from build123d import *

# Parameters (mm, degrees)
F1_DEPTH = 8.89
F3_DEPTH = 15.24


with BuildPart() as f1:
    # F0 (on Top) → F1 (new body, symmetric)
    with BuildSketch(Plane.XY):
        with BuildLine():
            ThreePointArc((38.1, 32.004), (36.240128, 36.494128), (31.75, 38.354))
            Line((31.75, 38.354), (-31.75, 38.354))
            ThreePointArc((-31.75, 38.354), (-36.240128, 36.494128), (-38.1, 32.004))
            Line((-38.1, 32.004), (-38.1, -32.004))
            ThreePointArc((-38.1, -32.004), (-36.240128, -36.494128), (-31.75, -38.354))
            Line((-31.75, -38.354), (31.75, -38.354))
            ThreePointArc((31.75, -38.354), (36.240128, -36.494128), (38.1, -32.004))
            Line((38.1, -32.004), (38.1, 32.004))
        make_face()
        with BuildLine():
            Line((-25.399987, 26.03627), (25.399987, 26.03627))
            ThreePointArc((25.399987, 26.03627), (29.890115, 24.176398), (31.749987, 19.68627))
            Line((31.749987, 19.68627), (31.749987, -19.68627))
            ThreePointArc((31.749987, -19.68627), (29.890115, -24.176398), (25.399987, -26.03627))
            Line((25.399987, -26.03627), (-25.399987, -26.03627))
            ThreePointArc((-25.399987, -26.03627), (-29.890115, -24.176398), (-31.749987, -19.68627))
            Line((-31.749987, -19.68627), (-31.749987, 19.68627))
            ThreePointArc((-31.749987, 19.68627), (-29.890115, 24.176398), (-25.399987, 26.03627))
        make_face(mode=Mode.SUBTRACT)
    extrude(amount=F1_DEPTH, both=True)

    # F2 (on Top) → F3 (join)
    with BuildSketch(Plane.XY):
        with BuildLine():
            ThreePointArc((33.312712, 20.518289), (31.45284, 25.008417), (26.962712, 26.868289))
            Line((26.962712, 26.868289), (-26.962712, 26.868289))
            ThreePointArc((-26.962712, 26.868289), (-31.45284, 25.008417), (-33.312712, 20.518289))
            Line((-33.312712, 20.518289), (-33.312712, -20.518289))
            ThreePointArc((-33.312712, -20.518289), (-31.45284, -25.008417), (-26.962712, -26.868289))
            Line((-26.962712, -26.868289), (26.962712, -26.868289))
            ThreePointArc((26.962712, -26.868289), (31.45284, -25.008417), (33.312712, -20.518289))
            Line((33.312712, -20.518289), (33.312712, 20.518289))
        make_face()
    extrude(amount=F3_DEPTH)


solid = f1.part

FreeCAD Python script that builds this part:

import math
import FreeCAD as App
import Part
import Sketcher

V = App.Vector
Q = App.Units.Quantity

doc = App.newDocument("Part")
body = doc.addObject("PartDesign::Body", "Body")

# Sketch on XY plane
sketch1 = body.newObject("Sketcher::SketchObject", "Sketch")
sketch1.AttachmentSupport = (doc.getObject("XY_Plane"), [""])
sketch1.MapMode = "FlatFace"
sketch1.addGeometry(Part.ArcOfCircle(Part.Circle(V(32, 32, 0), V(0, 0, 1), 6), math.radians(0), math.radians(90)), False)
sketch1.addGeometry(Part.LineSegment(V(32, 38, 0), V(-32, 38, 0)), False)
sketch1.addGeometry(Part.ArcOfCircle(Part.Circle(V(-32, 32, 0), V(0, 0, 1), 6), math.radians(90), math.radians(180)), False)
sketch1.addGeometry(Part.LineSegment(V(-38, 32, 0), V(-38, -32, 0)), False)
sketch1.addGeometry(Part.ArcOfCircle(Part.Circle(V(-32, -32, 0), V(0, 0, 1), 6), math.radians(-180), math.radians(-90)), False)
sketch1.addGeometry(Part.LineSegment(V(-32, -38, 0), V(32, -38, 0)), False)
sketch1.addGeometry(Part.ArcOfCircle(Part.Circle(V(32, -32, 0), V(0, 0, 1), 6), math.radians(-90), math.radians(0)), False)
sketch1.addGeometry(Part.LineSegment(V(38, -32, 0), V(38, 32, 0)), False)
sketch1.addGeometry(Part.ArcOfCircle(Part.Circle(V(-25, 20, 0), V(0, 0, 1), 6), math.radians(90), math.radians(180)), False)
sketch1.addGeometry(Part.LineSegment(V(-25, 26, 0), V(25, 26, 0)), False)
sketch1.addGeometry(Part.ArcOfCircle(Part.Circle(V(25, 20, 0), V(0, 0, 1), 6), math.radians(0), math.radians(90)), False)
sketch1.addGeometry(Part.LineSegment(V(32, 20, 0), V(32, -20, 0)), False)
sketch1.addGeometry(Part.ArcOfCircle(Part.Circle(V(25, -20, 0), V(0, 0, 1), 6), math.radians(-90), math.radians(0)), False)
sketch1.addGeometry(Part.LineSegment(V(25, -26, 0), V(-25, -26, 0)), False)
sketch1.addGeometry(Part.ArcOfCircle(Part.Circle(V(-25, -20, 0), V(0, 0, 1), 6), math.radians(-180), math.radians(-90)), False)
sketch1.addGeometry(Part.LineSegment(V(-32, -20, 0), V(-32, 20, 0)), False)
sketch1.addConstraint(Sketcher.Constraint("Tangent", 0, 2, 1, 1))
sketch1.addConstraint(Sketcher.Constraint("Tangent", 1, 2, 2, 1))
sketch1.addConstraint(Sketcher.Constraint("Tangent", 2, 2, 3, 1))
sketch1.addConstraint(Sketcher.Constraint("Tangent", 3, 2, 4, 1))
sketch1.addConstraint(Sketcher.Constraint("Tangent", 4, 2, 5, 1))
sketch1.addConstraint(Sketcher.Constraint("Tangent", 5, 2, 6, 1))
sketch1.addConstraint(Sketcher.Constraint("Tangent", 6, 2, 7, 1))
sketch1.addConstraint(Sketcher.Constraint("Tangent", 7, 2, 0, 1))
sketch1.addConstraint(Sketcher.Constraint("Tangent", 8, 1, 9, 1))
sketch1.addConstraint(Sketcher.Constraint("Tangent", 9, 2, 10, 2))
sketch1.addConstraint(Sketcher.Constraint("Tangent", 10, 1, 11, 1))
sketch1.addConstraint(Sketcher.Constraint("Tangent", 11, 2, 12, 2))
sketch1.addConstraint(Sketcher.Constraint("Tangent", 12, 1, 13, 1))
sketch1.addConstraint(Sketcher.Constraint("Tangent", 13, 2, 14, 2))
sketch1.addConstraint(Sketcher.Constraint("Tangent", 14, 1, 15, 1))
sketch1.addConstraint(Sketcher.Constraint("Tangent", 15, 2, 8, 2))
sketch1.addConstraint(Sketcher.Constraint("Horizontal", 1))
sketch1.addConstraint(Sketcher.Constraint("Vertical", 3))
sketch1.addConstraint(Sketcher.Constraint("Horizontal", 5))
sketch1.addConstraint(Sketcher.Constraint("Vertical", 7))
sketch1.addConstraint(Sketcher.Constraint("Horizontal", 9))
sketch1.addConstraint(Sketcher.Constraint("Vertical", 11))
sketch1.addConstraint(Sketcher.Constraint("Horizontal", 13))
sketch1.addConstraint(Sketcher.Constraint("Vertical", 15))
sketch1.addConstraint(Sketcher.Constraint("Equal", 0, 2))
sketch1.addConstraint(Sketcher.Constraint("Equal", 2, 4))
sketch1.addConstraint(Sketcher.Constraint("Equal", 4, 6))
sketch1.addConstraint(Sketcher.Constraint("Equal", 6, 8))
sketch1.addConstraint(Sketcher.Constraint("Equal", 8, 10))
sketch1.addConstraint(Sketcher.Constraint("Equal", 10, 12))
sketch1.addConstraint(Sketcher.Constraint("Equal", 12, 14))
sketch1.addConstraint(Sketcher.Constraint("Symmetric", 0, 3, 4, 3, -1, 1))
sketch1.addConstraint(Sketcher.Constraint("Symmetric", 8, 3, 12, 3, -1, 1))
sketch1.addConstraint(Sketcher.Constraint("Radius", 0, Q("0.25 in")))
sketch1.addConstraint(Sketcher.Constraint("DistanceX", 1, 2, 1, 1, Q("2.5 in")))
sketch1.addConstraint(Sketcher.Constraint("DistanceY", 3, 2, 3, 1, Q("2.52 in")))
sketch1.addConstraint(Sketcher.Constraint("DistanceY", 11, 2, 11, 1, Q("1.5501 in")))
sketch1.addConstraint(Sketcher.Constraint("DistanceX", 9, 1, 9, 2, 50.799974))
pad1 = body.newObject("PartDesign::Pad", "Pad")
pad1.Profile = sketch1
pad1.Length = Q("0.7 in")
pad1.Midplane = True

# Sketch on XY plane
sketch2 = body.newObject("Sketcher::SketchObject", "Sketch001")
sketch2.AttachmentSupport = (doc.getObject("XY_Plane"), [""])
sketch2.MapMode = "FlatFace"
sketch2.addGeometry(Part.ArcOfCircle(Part.Circle(V(27, 21, 0), V(0, 0, 1), 6), math.radians(0), math.radians(90)), False)
sketch2.addGeometry(Part.LineSegment(V(27, 27, 0), V(-27, 27, 0)), False)
sketch2.addGeometry(Part.ArcOfCircle(Part.Circle(V(-27, 21, 0), V(0, 0, 1), 6), math.radians(90), math.radians(180)), False)
sketch2.addGeometry(Part.LineSegment(V(-33, 21, 0), V(-33, -21, 0)), False)
sketch2.addGeometry(Part.ArcOfCircle(Part.Circle(V(-27, -21, 0), V(0, 0, 1), 6), math.radians(-180), math.radians(-90)), False)
sketch2.addGeometry(Part.LineSegment(V(-27, -27, 0), V(27, -27, 0)), False)
sketch2.addGeometry(Part.ArcOfCircle(Part.Circle(V(27, -21, 0), V(0, 0, 1), 6), math.radians(-90), math.radians(0)), False)
sketch2.addGeometry(Part.LineSegment(V(33, -21, 0), V(33, 21, 0)), False)
sketch2.addConstraint(Sketcher.Constraint("Tangent", 0, 2, 1, 1))
sketch2.addConstraint(Sketcher.Constraint("Tangent", 1, 2, 2, 1))
sketch2.addConstraint(Sketcher.Constraint("Tangent", 2, 2, 3, 1))
sketch2.addConstraint(Sketcher.Constraint("Tangent", 3, 2, 4, 1))
sketch2.addConstraint(Sketcher.Constraint("Tangent", 4, 2, 5, 1))
sketch2.addConstraint(Sketcher.Constraint("Tangent", 5, 2, 6, 1))
sketch2.addConstraint(Sketcher.Constraint("Tangent", 6, 2, 7, 1))
sketch2.addConstraint(Sketcher.Constraint("Tangent", 7, 2, 0, 1))
sketch2.addConstraint(Sketcher.Constraint("Horizontal", 1))
sketch2.addConstraint(Sketcher.Constraint("Vertical", 3))
sketch2.addConstraint(Sketcher.Constraint("Horizontal", 5))
sketch2.addConstraint(Sketcher.Constraint("Vertical", 7))
sketch2.addConstraint(Sketcher.Constraint("Equal", 0, 2))
sketch2.addConstraint(Sketcher.Constraint("Equal", 2, 4))
sketch2.addConstraint(Sketcher.Constraint("Equal", 4, 6))
sketch2.addConstraint(Sketcher.Constraint("Symmetric", 0, 3, 4, 3, -1, 1))
sketch2.addConstraint(Sketcher.Constraint("Radius", 0, Q("0.25 in")))
sketch2.addConstraint(Sketcher.Constraint("DistanceX", 1, 2, 1, 1, 53.925424))
sketch2.addConstraint(Sketcher.Constraint("DistanceY", 3, 2, 3, 1, 41.036578))
pad2 = body.newObject("PartDesign::Pad", "Pad001")
pad2.Profile = sketch2
pad2.Length = Q("0.6 in")

doc.recompute()
